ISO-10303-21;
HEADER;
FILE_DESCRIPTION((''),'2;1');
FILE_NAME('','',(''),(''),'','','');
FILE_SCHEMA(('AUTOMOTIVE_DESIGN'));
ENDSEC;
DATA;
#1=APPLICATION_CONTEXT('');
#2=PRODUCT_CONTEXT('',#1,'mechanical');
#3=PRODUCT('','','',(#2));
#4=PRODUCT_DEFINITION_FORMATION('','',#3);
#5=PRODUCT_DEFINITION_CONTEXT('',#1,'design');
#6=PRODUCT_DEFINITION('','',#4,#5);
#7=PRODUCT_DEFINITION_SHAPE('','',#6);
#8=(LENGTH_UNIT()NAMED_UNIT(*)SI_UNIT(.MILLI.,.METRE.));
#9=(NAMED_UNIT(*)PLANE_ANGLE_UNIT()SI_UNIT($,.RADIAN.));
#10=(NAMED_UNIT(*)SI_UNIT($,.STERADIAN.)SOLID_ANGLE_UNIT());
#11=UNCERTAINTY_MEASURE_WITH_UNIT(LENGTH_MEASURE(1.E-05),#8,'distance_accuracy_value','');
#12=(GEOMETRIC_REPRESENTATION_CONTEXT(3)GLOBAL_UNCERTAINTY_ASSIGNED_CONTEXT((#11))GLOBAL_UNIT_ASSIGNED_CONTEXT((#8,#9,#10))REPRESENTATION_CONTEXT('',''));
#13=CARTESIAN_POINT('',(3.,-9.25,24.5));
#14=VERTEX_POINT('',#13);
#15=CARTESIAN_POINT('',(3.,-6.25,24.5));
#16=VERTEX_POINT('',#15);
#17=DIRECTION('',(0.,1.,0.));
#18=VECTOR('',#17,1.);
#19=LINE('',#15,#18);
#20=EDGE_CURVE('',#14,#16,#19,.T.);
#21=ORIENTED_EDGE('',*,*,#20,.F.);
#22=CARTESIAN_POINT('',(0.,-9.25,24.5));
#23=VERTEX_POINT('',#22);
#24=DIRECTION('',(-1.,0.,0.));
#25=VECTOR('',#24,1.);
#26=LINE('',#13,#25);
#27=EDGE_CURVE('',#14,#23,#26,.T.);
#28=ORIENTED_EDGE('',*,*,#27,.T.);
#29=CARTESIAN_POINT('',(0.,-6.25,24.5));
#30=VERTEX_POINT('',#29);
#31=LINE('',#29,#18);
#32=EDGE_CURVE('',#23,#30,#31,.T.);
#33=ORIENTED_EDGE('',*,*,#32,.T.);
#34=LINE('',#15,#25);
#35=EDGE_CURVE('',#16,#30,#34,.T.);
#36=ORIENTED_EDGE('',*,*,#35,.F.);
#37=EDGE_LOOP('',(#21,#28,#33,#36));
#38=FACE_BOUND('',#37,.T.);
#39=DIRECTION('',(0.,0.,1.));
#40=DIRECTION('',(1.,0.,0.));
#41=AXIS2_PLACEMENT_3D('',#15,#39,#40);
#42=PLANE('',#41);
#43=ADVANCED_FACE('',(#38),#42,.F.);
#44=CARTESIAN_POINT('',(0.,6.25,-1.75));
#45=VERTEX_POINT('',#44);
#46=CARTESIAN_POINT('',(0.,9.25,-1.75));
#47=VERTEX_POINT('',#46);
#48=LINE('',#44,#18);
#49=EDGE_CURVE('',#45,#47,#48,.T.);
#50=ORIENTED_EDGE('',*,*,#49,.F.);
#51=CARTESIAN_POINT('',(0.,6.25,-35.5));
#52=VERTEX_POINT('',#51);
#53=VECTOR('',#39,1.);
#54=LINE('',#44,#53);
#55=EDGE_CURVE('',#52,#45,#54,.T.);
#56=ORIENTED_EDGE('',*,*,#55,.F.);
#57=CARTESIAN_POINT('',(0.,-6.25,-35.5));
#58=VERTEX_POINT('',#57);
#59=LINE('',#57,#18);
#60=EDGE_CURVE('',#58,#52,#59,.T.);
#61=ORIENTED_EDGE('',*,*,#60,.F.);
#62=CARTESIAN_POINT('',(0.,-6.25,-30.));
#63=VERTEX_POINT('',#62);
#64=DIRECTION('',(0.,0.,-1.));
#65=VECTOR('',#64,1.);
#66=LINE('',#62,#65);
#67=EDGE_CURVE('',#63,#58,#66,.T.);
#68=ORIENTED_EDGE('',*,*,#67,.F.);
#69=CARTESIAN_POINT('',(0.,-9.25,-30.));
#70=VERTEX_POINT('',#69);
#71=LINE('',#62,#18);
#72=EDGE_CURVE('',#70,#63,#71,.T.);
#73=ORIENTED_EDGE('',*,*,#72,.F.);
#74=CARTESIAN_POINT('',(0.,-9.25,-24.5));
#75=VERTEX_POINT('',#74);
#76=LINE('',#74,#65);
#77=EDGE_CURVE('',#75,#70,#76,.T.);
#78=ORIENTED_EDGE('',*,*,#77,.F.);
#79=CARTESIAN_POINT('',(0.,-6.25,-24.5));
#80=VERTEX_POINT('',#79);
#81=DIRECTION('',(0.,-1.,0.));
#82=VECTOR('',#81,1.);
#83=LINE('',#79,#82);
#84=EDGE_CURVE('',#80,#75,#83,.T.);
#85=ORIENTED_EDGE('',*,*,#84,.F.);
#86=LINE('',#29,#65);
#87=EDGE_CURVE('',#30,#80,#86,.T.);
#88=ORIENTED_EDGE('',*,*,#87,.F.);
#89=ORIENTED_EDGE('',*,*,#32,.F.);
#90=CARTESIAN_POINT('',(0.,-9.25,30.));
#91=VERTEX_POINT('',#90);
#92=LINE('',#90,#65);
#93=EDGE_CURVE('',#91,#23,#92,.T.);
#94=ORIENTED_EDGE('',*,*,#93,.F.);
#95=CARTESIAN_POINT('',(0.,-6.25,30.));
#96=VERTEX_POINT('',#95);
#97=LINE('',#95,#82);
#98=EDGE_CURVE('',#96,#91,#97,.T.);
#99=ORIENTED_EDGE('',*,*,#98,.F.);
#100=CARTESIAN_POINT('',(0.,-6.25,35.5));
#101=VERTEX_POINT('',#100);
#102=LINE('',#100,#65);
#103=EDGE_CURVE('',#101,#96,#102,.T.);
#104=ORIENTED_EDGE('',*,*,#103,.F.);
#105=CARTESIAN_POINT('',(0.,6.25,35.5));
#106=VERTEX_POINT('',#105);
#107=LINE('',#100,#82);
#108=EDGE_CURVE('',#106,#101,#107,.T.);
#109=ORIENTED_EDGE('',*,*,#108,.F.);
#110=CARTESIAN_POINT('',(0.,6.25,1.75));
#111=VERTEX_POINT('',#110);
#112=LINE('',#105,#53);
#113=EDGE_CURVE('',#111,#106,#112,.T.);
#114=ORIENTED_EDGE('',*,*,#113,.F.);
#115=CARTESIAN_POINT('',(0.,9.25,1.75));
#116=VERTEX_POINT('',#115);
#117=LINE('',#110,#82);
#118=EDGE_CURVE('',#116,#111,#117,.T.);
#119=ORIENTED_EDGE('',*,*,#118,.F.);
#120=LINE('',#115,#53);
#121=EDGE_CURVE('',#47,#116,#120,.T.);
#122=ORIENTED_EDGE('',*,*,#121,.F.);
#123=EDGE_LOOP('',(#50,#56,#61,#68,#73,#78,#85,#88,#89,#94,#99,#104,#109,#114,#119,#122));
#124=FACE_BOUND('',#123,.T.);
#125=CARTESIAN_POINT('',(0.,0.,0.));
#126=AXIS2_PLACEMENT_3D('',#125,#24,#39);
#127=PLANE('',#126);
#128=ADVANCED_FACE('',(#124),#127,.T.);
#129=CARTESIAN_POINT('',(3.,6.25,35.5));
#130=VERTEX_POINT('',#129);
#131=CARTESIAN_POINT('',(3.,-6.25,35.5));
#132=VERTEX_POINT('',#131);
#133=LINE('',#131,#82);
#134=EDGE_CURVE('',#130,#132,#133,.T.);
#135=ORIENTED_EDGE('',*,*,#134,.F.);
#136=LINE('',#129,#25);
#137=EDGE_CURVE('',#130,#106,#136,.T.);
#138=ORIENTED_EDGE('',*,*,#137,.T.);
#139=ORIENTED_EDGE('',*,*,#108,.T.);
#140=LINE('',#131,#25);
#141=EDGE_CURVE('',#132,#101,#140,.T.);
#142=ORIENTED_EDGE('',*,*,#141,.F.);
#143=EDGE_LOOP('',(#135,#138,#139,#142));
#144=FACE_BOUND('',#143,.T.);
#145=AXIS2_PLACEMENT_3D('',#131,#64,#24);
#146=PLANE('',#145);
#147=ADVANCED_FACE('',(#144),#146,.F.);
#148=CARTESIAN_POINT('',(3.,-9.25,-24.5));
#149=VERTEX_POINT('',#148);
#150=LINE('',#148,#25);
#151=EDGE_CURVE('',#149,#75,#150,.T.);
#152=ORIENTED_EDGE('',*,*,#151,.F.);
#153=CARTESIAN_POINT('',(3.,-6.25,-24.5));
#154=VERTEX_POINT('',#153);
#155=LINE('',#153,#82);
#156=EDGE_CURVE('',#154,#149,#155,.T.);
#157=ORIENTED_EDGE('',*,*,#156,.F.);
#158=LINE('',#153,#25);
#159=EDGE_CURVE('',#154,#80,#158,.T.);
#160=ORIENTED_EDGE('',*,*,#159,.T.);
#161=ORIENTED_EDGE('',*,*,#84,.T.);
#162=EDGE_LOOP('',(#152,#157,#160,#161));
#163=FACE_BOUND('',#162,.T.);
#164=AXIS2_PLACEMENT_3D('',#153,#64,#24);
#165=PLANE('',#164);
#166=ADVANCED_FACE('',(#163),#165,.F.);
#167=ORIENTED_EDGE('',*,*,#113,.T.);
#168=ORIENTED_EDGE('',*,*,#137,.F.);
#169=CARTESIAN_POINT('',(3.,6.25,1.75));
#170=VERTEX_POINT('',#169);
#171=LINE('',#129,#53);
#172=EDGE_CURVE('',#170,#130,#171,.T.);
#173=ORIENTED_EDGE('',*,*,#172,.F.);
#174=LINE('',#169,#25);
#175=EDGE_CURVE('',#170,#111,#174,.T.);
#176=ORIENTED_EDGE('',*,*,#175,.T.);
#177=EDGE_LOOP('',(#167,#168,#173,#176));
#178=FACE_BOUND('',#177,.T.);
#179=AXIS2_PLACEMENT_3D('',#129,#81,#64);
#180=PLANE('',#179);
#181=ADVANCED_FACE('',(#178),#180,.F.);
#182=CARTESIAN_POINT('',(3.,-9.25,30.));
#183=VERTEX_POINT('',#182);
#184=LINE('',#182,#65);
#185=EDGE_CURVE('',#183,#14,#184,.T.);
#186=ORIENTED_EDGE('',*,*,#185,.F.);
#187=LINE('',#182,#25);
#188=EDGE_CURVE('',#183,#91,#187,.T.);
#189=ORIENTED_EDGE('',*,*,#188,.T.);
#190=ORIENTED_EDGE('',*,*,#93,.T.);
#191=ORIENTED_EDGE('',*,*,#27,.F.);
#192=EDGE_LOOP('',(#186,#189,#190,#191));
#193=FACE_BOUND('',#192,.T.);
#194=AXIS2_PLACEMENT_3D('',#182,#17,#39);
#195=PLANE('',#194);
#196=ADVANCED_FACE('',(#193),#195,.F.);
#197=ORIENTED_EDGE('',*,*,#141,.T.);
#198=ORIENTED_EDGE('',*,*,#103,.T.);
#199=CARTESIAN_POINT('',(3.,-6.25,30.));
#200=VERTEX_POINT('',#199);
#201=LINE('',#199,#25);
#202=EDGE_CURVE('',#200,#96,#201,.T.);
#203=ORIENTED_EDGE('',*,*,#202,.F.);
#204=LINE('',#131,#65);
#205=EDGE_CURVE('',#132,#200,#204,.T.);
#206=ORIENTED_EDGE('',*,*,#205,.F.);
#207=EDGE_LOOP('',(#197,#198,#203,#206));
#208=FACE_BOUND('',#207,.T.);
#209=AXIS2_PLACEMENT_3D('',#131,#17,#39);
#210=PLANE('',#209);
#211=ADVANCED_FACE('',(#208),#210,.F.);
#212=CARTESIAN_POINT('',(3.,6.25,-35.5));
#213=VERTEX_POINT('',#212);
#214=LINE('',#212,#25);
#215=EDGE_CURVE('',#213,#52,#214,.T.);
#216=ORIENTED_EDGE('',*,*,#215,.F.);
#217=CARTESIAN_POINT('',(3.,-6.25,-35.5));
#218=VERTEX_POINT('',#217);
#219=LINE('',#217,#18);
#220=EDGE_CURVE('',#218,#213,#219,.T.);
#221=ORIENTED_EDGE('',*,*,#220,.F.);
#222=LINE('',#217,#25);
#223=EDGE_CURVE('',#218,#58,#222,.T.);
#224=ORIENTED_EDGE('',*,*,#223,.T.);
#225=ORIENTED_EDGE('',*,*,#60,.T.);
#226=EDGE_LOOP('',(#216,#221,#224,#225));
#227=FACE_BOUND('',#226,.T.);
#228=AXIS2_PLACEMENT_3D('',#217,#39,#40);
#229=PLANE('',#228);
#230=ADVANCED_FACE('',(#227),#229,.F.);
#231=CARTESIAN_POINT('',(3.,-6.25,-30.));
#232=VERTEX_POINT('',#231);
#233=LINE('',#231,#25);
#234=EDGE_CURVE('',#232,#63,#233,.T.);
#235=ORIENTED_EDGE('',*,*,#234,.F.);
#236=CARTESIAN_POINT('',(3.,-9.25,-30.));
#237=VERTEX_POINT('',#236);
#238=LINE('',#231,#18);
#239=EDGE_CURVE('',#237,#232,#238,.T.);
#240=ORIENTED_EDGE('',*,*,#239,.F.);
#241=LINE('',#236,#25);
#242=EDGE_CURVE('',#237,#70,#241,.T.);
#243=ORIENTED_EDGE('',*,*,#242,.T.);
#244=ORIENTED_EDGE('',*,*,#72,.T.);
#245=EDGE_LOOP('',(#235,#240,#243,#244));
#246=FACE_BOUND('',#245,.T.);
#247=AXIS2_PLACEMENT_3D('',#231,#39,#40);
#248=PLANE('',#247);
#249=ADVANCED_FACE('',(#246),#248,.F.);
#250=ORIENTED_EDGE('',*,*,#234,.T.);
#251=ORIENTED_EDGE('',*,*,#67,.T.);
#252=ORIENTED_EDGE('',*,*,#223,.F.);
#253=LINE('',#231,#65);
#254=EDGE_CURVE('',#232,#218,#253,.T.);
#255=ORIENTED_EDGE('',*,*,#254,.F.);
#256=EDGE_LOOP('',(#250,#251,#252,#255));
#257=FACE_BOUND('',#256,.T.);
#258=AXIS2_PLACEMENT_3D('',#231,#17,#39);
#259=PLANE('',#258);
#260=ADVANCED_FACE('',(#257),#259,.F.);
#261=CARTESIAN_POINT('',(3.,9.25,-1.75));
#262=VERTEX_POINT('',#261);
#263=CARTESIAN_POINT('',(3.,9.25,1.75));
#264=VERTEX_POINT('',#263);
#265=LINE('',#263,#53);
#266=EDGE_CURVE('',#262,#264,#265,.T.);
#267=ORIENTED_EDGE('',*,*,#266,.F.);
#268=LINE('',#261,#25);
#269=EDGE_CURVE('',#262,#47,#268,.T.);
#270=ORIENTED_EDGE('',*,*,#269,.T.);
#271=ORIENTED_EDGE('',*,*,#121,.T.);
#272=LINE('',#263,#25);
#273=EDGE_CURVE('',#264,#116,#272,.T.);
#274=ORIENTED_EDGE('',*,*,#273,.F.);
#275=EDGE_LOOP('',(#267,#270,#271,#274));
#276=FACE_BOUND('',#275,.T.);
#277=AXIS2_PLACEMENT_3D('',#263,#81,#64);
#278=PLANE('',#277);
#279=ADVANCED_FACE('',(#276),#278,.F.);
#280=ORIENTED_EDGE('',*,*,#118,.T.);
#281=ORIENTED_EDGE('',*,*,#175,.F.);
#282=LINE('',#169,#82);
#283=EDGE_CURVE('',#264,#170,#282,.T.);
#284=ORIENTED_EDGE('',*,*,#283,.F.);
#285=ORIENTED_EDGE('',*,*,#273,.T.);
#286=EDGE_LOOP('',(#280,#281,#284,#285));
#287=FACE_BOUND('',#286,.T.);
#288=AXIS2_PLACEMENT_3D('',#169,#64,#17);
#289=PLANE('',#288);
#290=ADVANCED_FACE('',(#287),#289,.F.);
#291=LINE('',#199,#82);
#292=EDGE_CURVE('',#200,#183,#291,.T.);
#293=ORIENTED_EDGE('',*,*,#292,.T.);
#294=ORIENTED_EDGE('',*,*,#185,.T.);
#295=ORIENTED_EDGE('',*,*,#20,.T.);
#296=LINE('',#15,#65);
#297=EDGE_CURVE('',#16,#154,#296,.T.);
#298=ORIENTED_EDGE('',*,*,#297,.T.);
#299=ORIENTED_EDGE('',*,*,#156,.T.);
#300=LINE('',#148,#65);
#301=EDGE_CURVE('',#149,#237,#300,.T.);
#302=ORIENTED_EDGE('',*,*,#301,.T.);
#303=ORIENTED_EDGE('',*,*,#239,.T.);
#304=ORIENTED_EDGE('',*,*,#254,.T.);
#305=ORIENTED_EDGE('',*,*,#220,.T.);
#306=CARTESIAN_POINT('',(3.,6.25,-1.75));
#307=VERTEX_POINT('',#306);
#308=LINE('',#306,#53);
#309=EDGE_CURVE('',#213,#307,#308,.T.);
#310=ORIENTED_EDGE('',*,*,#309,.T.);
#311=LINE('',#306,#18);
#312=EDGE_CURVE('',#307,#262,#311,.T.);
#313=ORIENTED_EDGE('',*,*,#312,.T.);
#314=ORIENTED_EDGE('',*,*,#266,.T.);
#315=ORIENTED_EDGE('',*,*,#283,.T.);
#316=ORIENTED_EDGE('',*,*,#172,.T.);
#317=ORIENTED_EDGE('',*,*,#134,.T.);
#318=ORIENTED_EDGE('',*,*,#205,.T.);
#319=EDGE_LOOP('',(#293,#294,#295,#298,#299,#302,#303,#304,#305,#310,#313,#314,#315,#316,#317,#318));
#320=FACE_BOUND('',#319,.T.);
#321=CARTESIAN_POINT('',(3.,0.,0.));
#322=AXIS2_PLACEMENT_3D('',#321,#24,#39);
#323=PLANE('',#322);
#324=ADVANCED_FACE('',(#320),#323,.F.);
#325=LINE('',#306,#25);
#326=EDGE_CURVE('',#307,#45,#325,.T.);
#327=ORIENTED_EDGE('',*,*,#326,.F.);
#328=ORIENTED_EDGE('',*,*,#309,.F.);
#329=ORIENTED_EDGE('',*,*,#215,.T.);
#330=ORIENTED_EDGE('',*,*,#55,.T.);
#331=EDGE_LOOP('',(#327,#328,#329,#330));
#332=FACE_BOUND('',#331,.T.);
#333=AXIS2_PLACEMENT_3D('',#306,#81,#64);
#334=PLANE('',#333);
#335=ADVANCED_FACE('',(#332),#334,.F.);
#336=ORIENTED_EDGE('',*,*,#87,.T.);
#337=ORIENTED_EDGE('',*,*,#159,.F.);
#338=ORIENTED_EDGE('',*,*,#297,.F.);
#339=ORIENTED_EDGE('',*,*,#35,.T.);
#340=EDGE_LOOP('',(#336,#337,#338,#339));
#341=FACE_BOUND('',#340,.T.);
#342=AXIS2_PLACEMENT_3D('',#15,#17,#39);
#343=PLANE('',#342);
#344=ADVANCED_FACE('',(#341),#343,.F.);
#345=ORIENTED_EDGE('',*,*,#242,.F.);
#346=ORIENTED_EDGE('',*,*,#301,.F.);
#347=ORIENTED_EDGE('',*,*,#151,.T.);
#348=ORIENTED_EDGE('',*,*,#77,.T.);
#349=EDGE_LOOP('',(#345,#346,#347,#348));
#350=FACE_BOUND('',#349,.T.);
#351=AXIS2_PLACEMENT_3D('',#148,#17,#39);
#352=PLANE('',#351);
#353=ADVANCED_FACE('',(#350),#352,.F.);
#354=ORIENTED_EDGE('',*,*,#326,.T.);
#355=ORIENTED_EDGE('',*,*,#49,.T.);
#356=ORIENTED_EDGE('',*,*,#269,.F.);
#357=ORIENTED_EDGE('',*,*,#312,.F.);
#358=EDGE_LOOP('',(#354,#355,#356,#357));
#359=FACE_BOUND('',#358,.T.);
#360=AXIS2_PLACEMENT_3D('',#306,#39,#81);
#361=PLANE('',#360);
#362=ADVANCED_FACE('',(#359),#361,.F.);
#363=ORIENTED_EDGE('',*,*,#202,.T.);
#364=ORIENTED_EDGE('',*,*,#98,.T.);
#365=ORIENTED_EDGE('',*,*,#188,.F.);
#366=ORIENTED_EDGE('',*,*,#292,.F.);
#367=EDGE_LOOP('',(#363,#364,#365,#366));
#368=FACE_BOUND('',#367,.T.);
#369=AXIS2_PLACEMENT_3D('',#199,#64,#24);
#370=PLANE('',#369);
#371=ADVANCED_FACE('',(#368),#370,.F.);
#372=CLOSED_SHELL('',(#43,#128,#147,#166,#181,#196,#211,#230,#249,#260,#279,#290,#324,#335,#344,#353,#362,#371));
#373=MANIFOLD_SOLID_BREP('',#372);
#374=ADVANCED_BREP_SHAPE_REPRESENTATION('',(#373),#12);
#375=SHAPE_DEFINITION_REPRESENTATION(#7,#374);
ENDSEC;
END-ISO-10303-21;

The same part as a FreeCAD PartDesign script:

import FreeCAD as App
import Part
import Sketcher


def add_polygon(sketch, points):
    """Adds a closed chain of lines whose ends are joined by coincident constraints."""
    first, n = sketch.GeometryCount, len(points)
    for a, b in zip(points, points[1:] + points[:1]):
        sketch.addGeometry(Part.LineSegment(App.Vector(*a, 0), App.Vector(*b, 0)), False)
    for i in range(n):
        sketch.addConstraint(Sketcher.Constraint("Coincident", first + i, 2, first + (i + 1) % n, 1))

doc = App.newDocument("Part")
body = doc.addObject("PartDesign::Body", "Body")

# Sketch on YZ plane
sketch1 = doc.addObject("Sketcher::SketchObject", "Sketch")
body.addObject(sketch1)
sketch1.AttachmentSupport = (doc.YZ_Plane, [""])
sketch1.MapMode = "FlatFace"
add_polygon(sketch1, [(6.2, -35.5), (6.2, -1.8), (9.2, -1.8), (9.2, 1.8), (6.2, 1.8), (6.2, 35.5), (-6.2, 35.5), (-6.2, 30), (-9.2, 30), (-9.2, 24.5), (-6.2, 24.5), (-6.2, -24.5), (-9.2, -24.5), (-9.2, -30), (-6.2, -30), (-6.2, -35.5)])  # lines 0-15
sketch1.addConstraint(Sketcher.Constraint("Vertical", 0))
sketch1.addConstraint(Sketcher.Constraint("Horizontal", 1))
sketch1.addConstraint(Sketcher.Constraint("Vertical", 2))
sketch1.addConstraint(Sketcher.Constraint("Horizontal", 3))
sketch1.addConstraint(Sketcher.Constraint("Vertical", 4))
sketch1.addConstraint(Sketcher.Constraint("Horizontal", 5))
sketch1.addConstraint(Sketcher.Constraint("Vertical", 6))
sketch1.addConstraint(Sketcher.Constraint("Horizontal", 7))
sketch1.addConstraint(Sketcher.Constraint("Vertical", 8))
sketch1.addConstraint(Sketcher.Constraint("Horizontal", 9))
sketch1.addConstraint(Sketcher.Constraint("Vertical", 10))
sketch1.addConstraint(Sketcher.Constraint("Horizontal", 11))
sketch1.addConstraint(Sketcher.Constraint("Vertical", 12))
sketch1.addConstraint(Sketcher.Constraint("Horizontal", 13))
sketch1.addConstraint(Sketcher.Constraint("Vertical", 14))
sketch1.addConstraint(Sketcher.Constraint("Horizontal", 15))
sketch1.addConstraint(Sketcher.Constraint("Symmetric", 4, 2, 14, 2, -1, 1))
sketch1.addConstraint(Sketcher.Constraint("Symmetric", 0, 2, 3, 2, -1))
sketch1.addConstraint(Sketcher.Constraint("Symmetric", 8, 2, 11, 2, -1))
sketch1.addConstraint(Sketcher.Constraint("Symmetric", 6, 2, 13, 2, -1))
sketch1.addConstraint(Sketcher.Constraint("Vertical", 6, 2, 9, 2))
sketch1.addConstraint(Sketcher.Constraint("Equal", 3, 7))
sketch1.addConstraint(Sketcher.Constraint("Equal", 6, 8))
sketch1.addConstraint(Sketcher.Constraint("DistanceX", 1, 1, 1, 2, 3.0))
sketch1.addConstraint(Sketcher.Constraint("DistanceY", 10, 2, 10, 1, 49.0))
sketch1.addConstraint(Sketcher.Constraint("DistanceX", 5, 2, 5, 1, 12.5))
sketch1.addConstraint(Sketcher.Constraint("DistanceY", 2, 1, 2, 2, 3.5))
sketch1.addConstraint(Sketcher.Constraint("DistanceY", 6, 2, 6, 1, 5.5))
pad1 = doc.addObject("PartDesign::Pad", "Pad")
body.addObject(pad1)
pad1.Profile = sketch1
pad1.Length = 3

doc.recompute()
